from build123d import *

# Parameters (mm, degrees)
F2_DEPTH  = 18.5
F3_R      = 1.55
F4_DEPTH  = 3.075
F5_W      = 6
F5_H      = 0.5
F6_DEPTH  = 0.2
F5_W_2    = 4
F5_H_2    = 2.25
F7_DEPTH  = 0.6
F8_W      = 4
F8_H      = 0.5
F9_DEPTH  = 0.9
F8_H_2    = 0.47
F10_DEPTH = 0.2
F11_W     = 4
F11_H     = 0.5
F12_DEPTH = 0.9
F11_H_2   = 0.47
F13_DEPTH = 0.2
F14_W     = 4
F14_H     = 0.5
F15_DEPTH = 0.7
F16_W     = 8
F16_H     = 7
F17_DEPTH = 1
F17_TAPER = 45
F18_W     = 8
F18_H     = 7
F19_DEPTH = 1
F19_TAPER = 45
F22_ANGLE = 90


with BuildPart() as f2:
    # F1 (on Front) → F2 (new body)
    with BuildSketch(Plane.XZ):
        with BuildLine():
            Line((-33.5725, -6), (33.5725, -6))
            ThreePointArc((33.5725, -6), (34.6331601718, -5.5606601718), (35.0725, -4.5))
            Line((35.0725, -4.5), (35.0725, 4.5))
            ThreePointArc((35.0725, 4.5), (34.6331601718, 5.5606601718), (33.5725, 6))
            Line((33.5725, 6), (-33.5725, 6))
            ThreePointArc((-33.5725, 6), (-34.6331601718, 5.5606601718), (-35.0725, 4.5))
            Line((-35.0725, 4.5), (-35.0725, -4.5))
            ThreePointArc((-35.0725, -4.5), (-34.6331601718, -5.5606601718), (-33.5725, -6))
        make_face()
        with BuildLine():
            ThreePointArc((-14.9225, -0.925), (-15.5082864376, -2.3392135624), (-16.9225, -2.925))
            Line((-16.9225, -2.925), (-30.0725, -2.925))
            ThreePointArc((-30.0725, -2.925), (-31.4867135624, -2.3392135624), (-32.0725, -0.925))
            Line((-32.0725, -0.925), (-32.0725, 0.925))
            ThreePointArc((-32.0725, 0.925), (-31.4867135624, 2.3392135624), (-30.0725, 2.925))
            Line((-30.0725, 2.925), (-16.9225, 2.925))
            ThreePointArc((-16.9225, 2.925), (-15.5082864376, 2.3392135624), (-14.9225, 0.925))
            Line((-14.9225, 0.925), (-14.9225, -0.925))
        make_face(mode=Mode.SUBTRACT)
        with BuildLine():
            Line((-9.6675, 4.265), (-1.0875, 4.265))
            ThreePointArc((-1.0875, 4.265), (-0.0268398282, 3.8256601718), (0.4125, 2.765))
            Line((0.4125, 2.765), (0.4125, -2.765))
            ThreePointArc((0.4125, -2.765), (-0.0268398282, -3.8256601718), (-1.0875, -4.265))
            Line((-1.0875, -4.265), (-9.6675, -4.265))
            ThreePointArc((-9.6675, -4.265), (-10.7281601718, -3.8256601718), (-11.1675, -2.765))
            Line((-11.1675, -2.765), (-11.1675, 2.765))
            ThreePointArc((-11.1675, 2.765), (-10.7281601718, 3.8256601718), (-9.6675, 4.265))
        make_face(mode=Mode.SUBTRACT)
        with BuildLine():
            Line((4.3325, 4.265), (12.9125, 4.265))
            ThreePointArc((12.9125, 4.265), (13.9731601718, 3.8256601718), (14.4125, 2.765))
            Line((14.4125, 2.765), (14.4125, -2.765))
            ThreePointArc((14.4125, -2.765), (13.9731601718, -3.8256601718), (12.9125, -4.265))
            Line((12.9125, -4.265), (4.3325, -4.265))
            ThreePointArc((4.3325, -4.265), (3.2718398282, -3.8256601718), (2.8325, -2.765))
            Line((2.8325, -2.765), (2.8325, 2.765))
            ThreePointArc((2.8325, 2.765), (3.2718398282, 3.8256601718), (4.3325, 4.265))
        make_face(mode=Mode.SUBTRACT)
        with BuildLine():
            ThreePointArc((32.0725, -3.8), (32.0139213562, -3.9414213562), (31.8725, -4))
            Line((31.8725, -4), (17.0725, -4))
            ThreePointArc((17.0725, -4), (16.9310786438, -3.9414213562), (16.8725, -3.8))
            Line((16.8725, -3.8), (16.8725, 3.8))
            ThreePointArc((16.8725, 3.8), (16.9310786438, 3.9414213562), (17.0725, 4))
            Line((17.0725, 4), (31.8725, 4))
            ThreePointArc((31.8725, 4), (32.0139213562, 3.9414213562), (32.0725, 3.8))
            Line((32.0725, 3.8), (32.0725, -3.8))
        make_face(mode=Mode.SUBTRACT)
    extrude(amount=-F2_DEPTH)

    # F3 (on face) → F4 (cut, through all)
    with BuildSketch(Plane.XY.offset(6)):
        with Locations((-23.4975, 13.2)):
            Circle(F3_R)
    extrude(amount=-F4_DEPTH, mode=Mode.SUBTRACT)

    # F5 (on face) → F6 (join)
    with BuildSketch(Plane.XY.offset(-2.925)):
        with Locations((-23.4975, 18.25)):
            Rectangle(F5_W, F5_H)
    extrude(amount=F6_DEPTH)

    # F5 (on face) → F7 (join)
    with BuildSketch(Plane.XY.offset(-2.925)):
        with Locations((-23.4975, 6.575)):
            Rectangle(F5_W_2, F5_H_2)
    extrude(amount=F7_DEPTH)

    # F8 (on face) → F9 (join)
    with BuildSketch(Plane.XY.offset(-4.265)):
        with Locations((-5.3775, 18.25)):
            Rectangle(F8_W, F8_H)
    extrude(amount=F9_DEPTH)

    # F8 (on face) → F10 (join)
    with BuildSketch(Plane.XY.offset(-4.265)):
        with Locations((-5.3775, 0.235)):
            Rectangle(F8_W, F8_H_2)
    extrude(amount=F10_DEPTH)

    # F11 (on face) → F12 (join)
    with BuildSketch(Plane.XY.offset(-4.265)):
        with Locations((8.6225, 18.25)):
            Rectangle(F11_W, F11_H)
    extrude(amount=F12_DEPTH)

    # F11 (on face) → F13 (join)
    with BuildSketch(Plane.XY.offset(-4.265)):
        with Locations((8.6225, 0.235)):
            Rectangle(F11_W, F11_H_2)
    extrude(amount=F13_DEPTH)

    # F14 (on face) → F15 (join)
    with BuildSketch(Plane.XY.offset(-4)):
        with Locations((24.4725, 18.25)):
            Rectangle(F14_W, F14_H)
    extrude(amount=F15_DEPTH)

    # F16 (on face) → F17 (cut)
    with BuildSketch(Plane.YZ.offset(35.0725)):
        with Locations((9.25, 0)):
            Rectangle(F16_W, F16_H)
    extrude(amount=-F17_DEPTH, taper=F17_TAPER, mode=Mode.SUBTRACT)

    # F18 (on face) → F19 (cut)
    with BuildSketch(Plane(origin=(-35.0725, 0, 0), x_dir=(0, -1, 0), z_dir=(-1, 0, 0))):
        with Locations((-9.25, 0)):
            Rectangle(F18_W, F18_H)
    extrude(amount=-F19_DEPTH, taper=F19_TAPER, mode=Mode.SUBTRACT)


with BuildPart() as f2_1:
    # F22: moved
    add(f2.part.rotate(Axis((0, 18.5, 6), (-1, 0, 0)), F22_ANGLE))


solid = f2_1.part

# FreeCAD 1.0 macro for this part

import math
import FreeCAD as App
import Part
import Sketcher
Q = App.Units.Quantity


def add_polygon(sketch, points):
    """Adds a closed chain of lines whose ends are joined by coincident constraints."""
    first, n = sketch.GeometryCount, len(points)
    for a, b in zip(points, points[1:] + points[:1]):
        sketch.addGeometry(Part.LineSegment(App.Vector(*a, 0), App.Vector(*b, 0)), False)
    for i in range(n):
        sketch.addConstraint(Sketcher.Constraint("Coincident", first + i, 2, first + (i + 1) % n, 1))

doc = App.newDocument("Part")
body = doc.addObject("PartDesign::Body", "Body")

# Sketch on XZ plane
sketch1 = body.newObject("Sketcher::SketchObject", "Sketch")
sketch1.AttachmentSupport = (doc.getObject("XZ_Plane"), [""])
sketch1.MapMode = "FlatFace"
sketch1.addGeometry([
    Part.LineSegment(App.Vector(-33.57, -6, 0), App.Vector(33.57, -6, 0)),  # 0
    Part.ArcOfCircle(Part.Circle(App.Vector(33.57, -4.5, 0), App.Vector(0, 0, 1), 1.5), math.radians(-90), math.radians(0)),  # 1
    Part.LineSegment(App.Vector(35.07, -4.5, 0), App.Vector(35.07, 4.5, 0)),  # 2
    Part.ArcOfCircle(Part.Circle(App.Vector(33.57, 4.5, 0), App.Vector(0, 0, 1), 1.5), math.radians(0), math.radians(90)),  # 3
    Part.LineSegment(App.Vector(33.57, 6, 0), App.Vector(-33.57, 6, 0)),  # 4
    Part.ArcOfCircle(Part.Circle(App.Vector(-33.57, 4.5, 0), App.Vector(0, 0, 1), 1.5), math.radians(90), math.radians(180)),  # 5
    Part.LineSegment(App.Vector(-35.07, 4.5, 0), App.Vector(-35.07, -4.5, 0)),  # 6
    Part.ArcOfCircle(Part.Circle(App.Vector(-33.57, -4.5, 0), App.Vector(0, 0, 1), 1.5), math.radians(180), math.radians(270)),  # 7
    Part.LineSegment(App.Vector(-14.92, 0.93, 0), App.Vector(-14.92, -0.93, 0)),  # 8
    Part.ArcOfCircle(Part.Circle(App.Vector(-16.92, -0.93, 0), App.Vector(0, 0, 1), 2), math.radians(-90), math.radians(0)),  # 9
    Part.LineSegment(App.Vector(-16.92, -2.92, 0), App.Vector(-30.07, -2.92, 0)),  # 10
    Part.ArcOfCircle(Part.Circle(App.Vector(-30.07, -0.93, 0), App.Vector(0, 0, 1), 2), math.radians(180), math.radians(270)),  # 11
    Part.LineSegment(App.Vector(-32.07, -0.93, 0), App.Vector(-32.07, 0.93, 0)),  # 12
    Part.ArcOfCircle(Part.Circle(App.Vector(-30.07, 0.93, 0), App.Vector(0, 0, 1), 2), math.radians(90), math.radians(180)),  # 13
    Part.LineSegment(App.Vector(-30.07, 2.92, 0), App.Vector(-16.92, 2.92, 0)),  # 14
    Part.ArcOfCircle(Part.Circle(App.Vector(-16.92, 0.93, 0), App.Vector(0, 0, 1), 2), math.radians(0), math.radians(90)),  # 15
    Part.ArcOfCircle(Part.Circle(App.Vector(-9.67, 2.77, 0), App.Vector(0, 0, 1), 1.5), math.radians(90), math.radians(180)),  # 16
    Part.LineSegment(App.Vector(-9.67, 4.26, 0), App.Vector(-1.09, 4.26, 0)),  # 17
    Part.ArcOfCircle(Part.Circle(App.Vector(-1.09, 2.77, 0), App.Vector(0, 0, 1), 1.5), math.radians(0), math.radians(90)),  # 18
    Part.LineSegment(App.Vector(0.41, 2.77, 0), App.Vector(0.41, -2.77, 0)),  # 19
    Part.ArcOfCircle(Part.Circle(App.Vector(-1.09, -2.77, 0), App.Vector(0, 0, 1), 1.5), math.radians(-90), math.radians(0)),  # 20
    Part.LineSegment(App.Vector(-1.09, -4.26, 0), App.Vector(-9.67, -4.26, 0)),  # 21
    Part.ArcOfCircle(Part.Circle(App.Vector(-9.67, -2.77, 0), App.Vector(0, 0, 1), 1.5), math.radians(180), math.radians(270)),  # 22
    Part.LineSegment(App.Vector(-11.17, -2.77, 0), App.Vector(-11.17, 2.77, 0)),  # 23
    Part.ArcOfCircle(Part.Circle(App.Vector(4.33, 2.77, 0), App.Vector(0, 0, 1), 1.5), math.radians(90), math.radians(180)),  # 24
    Part.LineSegment(App.Vector(4.33, 4.26, 0), App.Vector(12.91, 4.26, 0)),  # 25
    Part.ArcOfCircle(Part.Circle(App.Vector(12.91, 2.77, 0), App.Vector(0, 0, 1), 1.5), math.radians(0), math.radians(90)),  # 26
    Part.LineSegment(App.Vector(14.41, 2.77, 0), App.Vector(14.41, -2.77, 0)),  # 27
    Part.ArcOfCircle(Part.Circle(App.Vector(12.91, -2.77, 0), App.Vector(0, 0, 1), 1.5), math.radians(-90), math.radians(0)),  # 28
    Part.LineSegment(App.Vector(12.91, -4.26, 0), App.Vector(4.33, -4.26, 0)),  # 29
    Part.ArcOfCircle(Part.Circle(App.Vector(4.33, -2.77, 0), App.Vector(0, 0, 1), 1.5), math.radians(180), math.radians(270)),  # 30
    Part.LineSegment(App.Vector(2.83, -2.77, 0), App.Vector(2.83, 2.77, 0)),  # 31
    Part.LineSegment(App.Vector(32.07, 3.8, 0), App.Vector(32.07, -3.8, 0)),  # 32
    Part.ArcOfCircle(Part.Circle(App.Vector(31.87, -3.8, 0), App.Vector(0, 0, 1), 0.2), math.radians(-90), math.radians(0)),  # 33
    Part.LineSegment(App.Vector(31.87, -4, 0), App.Vector(17.07, -4, 0)),  # 34
    Part.ArcOfCircle(Part.Circle(App.Vector(17.07, -3.8, 0), App.Vector(0, 0, 1), 0.2), math.radians(180), math.radians(270)),  # 35
    Part.LineSegment(App.Vector(16.87, -3.8, 0), App.Vector(16.87, 3.8, 0)),  # 36
    Part.ArcOfCircle(Part.Circle(App.Vector(17.07, 3.8, 0), App.Vector(0, 0, 1), 0.2), math.radians(90), math.radians(180)),  # 37
    Part.LineSegment(App.Vector(17.07, 4, 0), App.Vector(31.87, 4, 0)),  # 38
    Part.ArcOfCircle(Part.Circle(App.Vector(31.87, 3.8, 0), App.Vector(0, 0, 1), 0.2), math.radians(0), math.radians(90)),  # 39
], False)
sketch1.addConstraint([
    Sketcher.Constraint("Tangent", 0, 2, 1, 1),
    Sketcher.Constraint("Tangent", 1, 2, 2, 1),
    Sketcher.Constraint("Tangent", 2, 2, 3, 1),
    Sketcher.Constraint("Tangent", 3, 2, 4, 1),
    Sketcher.Constraint("Tangent", 4, 2, 5, 1),
    Sketcher.Constraint("Tangent", 5, 2, 6, 1),
    Sketcher.Constraint("Tangent", 6, 2, 7, 1),
    Sketcher.Constraint("Tangent", 7, 2, 0, 1),
    Sketcher.Constraint("Tangent", 8, 2, 9, 2),
    Sketcher.Constraint("Tangent", 9, 1, 10, 1),
    Sketcher.Constraint("Tangent", 10, 2, 11, 2),
    Sketcher.Constraint("Tangent", 11, 1, 12, 1),
    Sketcher.Constraint("Tangent", 12, 2, 13, 2),
    Sketcher.Constraint("Tangent", 13, 1, 14, 1),
    Sketcher.Constraint("Tangent", 14, 2, 15, 2),
    Sketcher.Constraint("Tangent", 15, 1, 8, 1),
    Sketcher.Constraint("Tangent", 16, 1, 17, 1),
    Sketcher.Constraint("Tangent", 17, 2, 18, 2),
    Sketcher.Constraint("Tangent", 18, 1, 19, 1),
    Sketcher.Constraint("Tangent", 19, 2, 20, 2),
    Sketcher.Constraint("Tangent", 20, 1, 21, 1),
    Sketcher.Constraint("Tangent", 21, 2, 22, 2),
    Sketcher.Constraint("Tangent", 22, 1, 23, 1),
    Sketcher.Constraint("Tangent", 23, 2, 16, 2),
    Sketcher.Constraint("Tangent", 24, 1, 25, 1),
    Sketcher.Constraint("Tangent", 25, 2, 26, 2),
    Sketcher.Constraint("Tangent", 26, 1, 27, 1),
    Sketcher.Constraint("Tangent", 27, 2, 28, 2),
    Sketcher.Constraint("Tangent", 28, 1, 29, 1),
    Sketcher.Constraint("Tangent", 29, 2, 30, 2),
    Sketcher.Constraint("Tangent", 30, 1, 31, 1),
    Sketcher.Constraint("Tangent", 31, 2, 24, 2),
    Sketcher.Constraint("Tangent", 32, 2, 33, 2),
    Sketcher.Constraint("Tangent", 33, 1, 34, 1),
    Sketcher.Constraint("Tangent", 34, 2, 35, 2),
    Sketcher.Constraint("Tangent", 35, 1, 36, 1),
    Sketcher.Constraint("Tangent", 36, 2, 37, 2),
    Sketcher.Constraint("Tangent", 37, 1, 38, 1),
    Sketcher.Constraint("Tangent", 38, 2, 39, 2),
    Sketcher.Constraint("Tangent", 39, 1, 32, 1),
    Sketcher.Constraint("Horizontal", 0),
    Sketcher.Constraint("Vertical", 2),
    Sketcher.Constraint("Horizontal", 4),
    Sketcher.Constraint("Vertical", 6),
    Sketcher.Constraint("Vertical", 8),
    Sketcher.Constraint("Horizontal", 10),
    Sketcher.Constraint("Vertical", 12),
    Sketcher.Constraint("Horizontal", 14),
    Sketcher.Constraint("Horizontal", 17),
    Sketcher.Constraint("Vertical", 19),
    Sketcher.Constraint("Horizontal", 21),
    Sketcher.Constraint("Vertical", 23),
    Sketcher.Constraint("Horizontal", 25),
    Sketcher.Constraint("Vertical", 27),
    Sketcher.Constraint("Horizontal", 29),
    Sketcher.Constraint("Vertical", 31),
    Sketcher.Constraint("Vertical", 32),
    Sketcher.Constraint("Horizontal", 34),
    Sketcher.Constraint("Vertical", 36),
    Sketcher.Constraint("Horizontal", 38),
    Sketcher.Constraint("Equal", 1, 3),
    Sketcher.Constraint("Equal", 3, 5),
    Sketcher.Constraint("Equal", 5, 7),
    Sketcher.Constraint("Equal", 9, 11),
    Sketcher.Constraint("Equal", 11, 13),
    Sketcher.Constraint("Equal", 13, 15),
    Sketcher.Constraint("Equal", 7, 16),
    Sketcher.Constraint("Equal", 16, 18),
    Sketcher.Constraint("Equal", 18, 20),
    Sketcher.Constraint("Equal", 20, 22),
    Sketcher.Constraint("Equal", 22, 24),
    Sketcher.Constraint("Equal", 24, 26),
    Sketcher.Constraint("Equal", 26, 28),
    Sketcher.Constraint("Equal", 28, 30),
    Sketcher.Constraint("Equal", 33, 35),
    Sketcher.Constraint("Equal", 35, 37),
    Sketcher.Constraint("Equal", 37, 39),
    Sketcher.Constraint("Symmetric", 1, 3, 5, 3, -1, 1),
    Sketcher.Constraint("Horizontal", 18, 3, 24, 3),
    Sketcher.Constraint("Horizontal", 22, 3, 28, 3),
    Sketcher.Constraint("Equal", 21, 25),
    Sketcher.Constraint("Radius", 9, Q("2 mm")),
    Sketcher.Constraint("Radius", 1, Q("1.5 mm")),
    Sketcher.Constraint("Radius", 33, Q("0.2 mm")),
    Sketcher.Constraint("DistanceY", 2, 1, 2, 2, Q("9 mm")),
    Sketcher.Constraint("DistanceX", 34, 2, 34, 1, Q("14.8 mm")),
    Sketcher.Constraint("DistanceY", 32, 2, 32, 1, Q("7.6 mm")),
    Sketcher.Constraint("DistanceY", 33, 1, -1, 1, Q("4 mm")),
    Sketcher.Constraint("DistanceX", 16, 3, 24, 3, Q("14 mm")),
    Sketcher.Constraint("DistanceX", 5, 2, 13, 3, Q("5 mm")),
    Sketcher.Constraint("DistanceX", 32, 2, 1, 2, Q("3 mm")),
    Sketcher.Constraint("DistanceX", 10, 2, 10, 1, Q("13.15 mm")),
    Sketcher.Constraint("DistanceX", 17, 1, 17, 2, Q("8.58 mm")),
    Sketcher.Constraint("DistanceY", 8, 2, 8, 1, Q("1.85 mm")),
    Sketcher.Constraint("DistanceY", 19, 2, 19, 1, Q("5.53 mm")),
    Sketcher.Constraint("DistanceX", 0, 1, 0, 2, Q("67.145 mm")),
    Sketcher.Constraint("DistanceY", 15, 3, 16, 3, Q("1.84 mm")),
    Sketcher.Constraint("DistanceX", 26, 3, 3, 3, Q("20.66 mm")),
    Sketcher.Constraint("DistanceY", 9, 3, -1, 1, Q("0.925 mm")),
])
pad1 = body.newObject("PartDesign::Pad", "Pad")
pad1.Profile = sketch1
pad1.Length = 18.5
pad1.Reversed = True

# Sketch on XY plane
sketch2 = body.newObject("Sketcher::SketchObject", "Sketch001")
sketch2.AttachmentSupport = (doc.getObject("XY_Plane"), [""])
sketch2.MapMode = "FlatFace"
sketch2.AttachmentOffset = App.Placement(App.Vector(0, 0, 6), App.Rotation())
sketch2.addGeometry(Part.Circle(App.Vector(-23.5, 13.2, 0), App.Vector(0, 0, 1), 1.6), False)
sketch2.addConstraint([
    Sketcher.Constraint("Diameter", 0, Q("3.1 mm")),
    Sketcher.Constraint("DistanceY", -1, 1, 0, 3, Q("13.2 mm")),
    Sketcher.Constraint("DistanceX", 0, 3, -1, 1, Q("23.4975 mm")),
])
pocket1 = body.newObject("PartDesign::Pocket", "Pocket")
pocket1.Profile = sketch2
pocket1.Length = 3.075

# Sketch on XY plane
sketch3 = body.newObject("Sketcher::SketchObject", "Sketch002")
sketch3.AttachmentSupport = (doc.getObject("XY_Plane"), [""])
sketch3.MapMode = "FlatFace"
sketch3.AttachmentOffset = App.Placement(App.Vector(0, 0, -2.925), App.Rotation())
add_polygon(sketch3, [(-26.5, 18.5), (-26.5, 18), (-20.5, 18), (-20.5, 18.5)])  # lines 0-3
sketch3.addConstraint([
    Sketcher.Constraint("Vertical", 0),
    Sketcher.Constraint("Horizontal", 1),
    Sketcher.Constraint("Vertical", 2),
    Sketcher.Constraint("Horizontal", 3),
    Sketcher.Constraint("DistanceX", 1, 1, 1, 2, Q("6 mm")),
    Sketcher.Constraint("DistanceY", 0, 2, 0, 1, Q("0.5 mm")),
    Sketcher.Constraint("DistanceY", -1, 1, 0, 2, Q("18 mm")),
    Sketcher.Constraint("DistanceX", 0, 2, -1, 1, Q("26.4975 mm")),
])
pad2 = body.newObject("PartDesign::Pad", "Pad001")
pad2.Profile = sketch3
pad2.Length = 0.2

# Sketch on XY plane
sketch4 = body.newObject("Sketcher::SketchObject", "Sketch003")
sketch4.AttachmentSupport = (doc.getObject("XY_Plane"), [""])
sketch4.MapMode = "FlatFace"
sketch4.AttachmentOffset = App.Placement(App.Vector(0, 0, -2.925), App.Rotation())
add_polygon(sketch4, [(-25.5, 7.7), (-25.5, 5.5), (-21.5, 5.5), (-21.5, 7.7)])  # lines 0-3
sketch4.addConstraint([
    Sketcher.Constraint("Vertical", 0),
    Sketcher.Constraint("Horizontal", 1),
    Sketcher.Constraint("Vertical", 2),
    Sketcher.Constraint("Horizontal", 3),
    Sketcher.Constraint("DistanceX", 1, 1, 1, 2, Q("4 mm")),
    Sketcher.Constraint("DistanceY", 0, 2, 0, 1, Q("2.25 mm")),
    Sketcher.Constraint("DistanceY", -1, 1, 2, 2, Q("7.7 mm")),
    Sketcher.Constraint("DistanceX", 0, 2, -1, 1, Q("25.4975 mm")),
])
pad3 = body.newObject("PartDesign::Pad", "Pad002")
pad3.Profile = sketch4
pad3.Length = 0.6

# Sketch on XY plane
sketch5 = body.newObject("Sketcher::SketchObject", "Sketch004")
sketch5.AttachmentSupport = (doc.getObject("XY_Plane"), [""])
sketch5.MapMode = "FlatFace"
sketch5.AttachmentOffset = App.Placement(App.Vector(0, 0, -4.265), App.Rotation())
add_polygon(sketch5, [(-7.4, 18.5), (-7.4, 18), (-3.4, 18), (-3.4, 18.5)])  # lines 0-3
sketch5.addConstraint([
    Sketcher.Constraint("Vertical", 0),
    Sketcher.Constraint("Horizontal", 1),
    Sketcher.Constraint("Vertical", 2),
    Sketcher.Constraint("Horizontal", 3),
    Sketcher.Constraint("DistanceX", 1, 1, 1, 2, Q("4 mm")),
    Sketcher.Constraint("DistanceY", 0, 2, 0, 1, Q("0.5 mm")),
    Sketcher.Constraint("DistanceY", -1, 1, 0, 2, Q("18 mm")),
    Sketcher.Constraint("DistanceX", 0, 2, -1, 1, Q("7.3775 mm")),
])
pad4 = body.newObject("PartDesign::Pad", "Pad003")
pad4.Profile = sketch5
pad4.Length = 0.9

# Sketch on XY plane
sketch6 = body.newObject("Sketcher::SketchObject", "Sketch005")
sketch6.AttachmentSupport = (doc.getObject("XY_Plane"), [""])
sketch6.MapMode = "FlatFace"
sketch6.AttachmentOffset = App.Placement(App.Vector(0, 0, -4.265), App.Rotation())
add_polygon(sketch6, [(-7.38, 0.47), (-7.38, 0), (-3.38, 0), (-3.38, 0.47)])  # lines 0-3
sketch6.addConstraint([
    Sketcher.Constraint("Vertical", 0),
    Sketcher.Constraint("Horizontal", 1),
    Sketcher.Constraint("Vertical", 2),
    Sketcher.Constraint("Horizontal", 3),
    Sketcher.Constraint("PointOnObject", 0, 2, -1),
    Sketcher.Constraint("DistanceX", 1, 1, 1, 2, Q("4 mm")),
    Sketcher.Constraint("DistanceY", 0, 2, 0, 1, Q("0.47 mm")),
    Sketcher.Constraint("DistanceX", 0, 2, -1, 1, Q("7.3775 mm")),
])
pad5 = body.newObject("PartDesign::Pad", "Pad004")
pad5.Profile = sketch6
pad5.Length = 0.2

# Sketch on XY plane
sketch7 = body.newObject("Sketcher::SketchObject", "Sketch006")
sketch7.AttachmentSupport = (doc.getObject("XY_Plane"), [""])
sketch7.MapMode = "FlatFace"
sketch7.AttachmentOffset = App.Placement(App.Vector(0, 0, -4.265), App.Rotation())
add_polygon(sketch7, [(6.6, 18.5), (6.6, 18), (10.6, 18), (10.6, 18.5)])  # lines 0-3
sketch7.addConstraint([
    Sketcher.Constraint("Vertical", 0),
    Sketcher.Constraint("Horizontal", 1),
    Sketcher.Constraint("Vertical", 2),
    Sketcher.Constraint("Horizontal", 3),
    Sketcher.Constraint("DistanceX", 1, 1, 1, 2, Q("4 mm")),
    Sketcher.Constraint("DistanceY", 0, 2, 0, 1, Q("0.5 mm")),
    Sketcher.Constraint("DistanceY", -1, 1, 0, 2, Q("18 mm")),
    Sketcher.Constraint("DistanceX", -1, 1, 0, 2, Q("6.6225 mm")),
])
pad6 = body.newObject("PartDesign::Pad", "Pad005")
pad6.Profile = sketch7
pad6.Length = 0.9

# Sketch on XY plane
sketch8 = body.newObject("Sketcher::SketchObject", "Sketch007")
sketch8.AttachmentSupport = (doc.getObject("XY_Plane"), [""])
sketch8.MapMode = "FlatFace"
sketch8.AttachmentOffset = App.Placement(App.Vector(0, 0, -4.265), App.Rotation())
add_polygon(sketch8, [(6.62, 0.47), (6.62, 0), (10.62, 0), (10.62, 0.47)])  # lines 0-3
sketch8.addConstraint([
    Sketcher.Constraint("Vertical", 0),
    Sketcher.Constraint("Horizontal", 1),
    Sketcher.Constraint("Vertical", 2),
    Sketcher.Constraint("Horizontal", 3),
    Sketcher.Constraint("PointOnObject", 0, 2, -1),
    Sketcher.Constraint("DistanceX", 1, 1, 1, 2, Q("4 mm")),
    Sketcher.Constraint("DistanceY", 0, 2, 0, 1, Q("0.47 mm")),
    Sketcher.Constraint("DistanceX", -1, 1, 0, 2, Q("6.6225 mm")),
])
pad7 = body.newObject("PartDesign::Pad", "Pad006")
pad7.Profile = sketch8
pad7.Length = 0.2

# Sketch on XY plane
sketch9 = body.newObject("Sketcher::SketchObject", "Sketch008")
sketch9.AttachmentSupport = (doc.getObject("XY_Plane"), [""])
sketch9.MapMode = "FlatFace"
sketch9.AttachmentOffset = App.Placement(App.Vector(0, 0, -4), App.Rotation())
add_polygon(sketch9, [(22.5, 18.5), (22.5, 18), (26.5, 18), (26.5, 18.5)])  # lines 0-3
sketch9.addConstraint([
    Sketcher.Constraint("Vertical", 0),
    Sketcher.Constraint("Horizontal", 1),
    Sketcher.Constraint("Vertical", 2),
    Sketcher.Constraint("Horizontal", 3),
    Sketcher.Constraint("DistanceX", 1, 1, 1, 2, Q("4 mm")),
    Sketcher.Constraint("DistanceY", 0, 2, 0, 1, Q("0.5 mm")),
    Sketcher.Constraint("DistanceY", -1, 1, 0, 2, Q("18 mm")),
    Sketcher.Constraint("DistanceX", -1, 1, 0, 2, Q("22.4725 mm")),
])
pad8 = body.newObject("PartDesign::Pad", "Pad007")
pad8.Profile = sketch9
pad8.Length = 0.7

# Sketch on YZ plane
sketch10 = body.newObject("Sketcher::SketchObject", "Sketch009")
sketch10.AttachmentSupport = (doc.getObject("YZ_Plane"), [""])
sketch10.MapMode = "FlatFace"
sketch10.AttachmentOffset = App.Placement(App.Vector(0, 0, 35.0725), App.Rotation())
add_polygon(sketch10, [(5, 4), (5, -4), (13, -4), (13, 4)])  # lines 0-3
sketch10.addConstraint([
    Sketcher.Constraint("Vertical", 0),
    Sketcher.Constraint("Horizontal", 1),
    Sketcher.Constraint("Vertical", 2),
    Sketcher.Constraint("Horizontal", 3),
    Sketcher.Constraint("DistanceX", 1, 1, 1, 2, Q("8 mm")),
    Sketcher.Constraint("DistanceY", 0, 2, 0, 1, Q("7 mm")),
    Sketcher.Constraint("DistanceY", 0, 2, -1, 1, Q("3.5 mm")),
    Sketcher.Constraint("DistanceX", -1, 1, 0, 2, Q("5.25 mm")),
])
pocket2 = body.newObject("PartDesign::Pocket", "Pocket001")
pocket2.Profile = sketch10
pocket2.Length = 1
pocket2.TaperAngle = -45

# Sketch on YZ plane
sketch11 = body.newObject("Sketcher::SketchObject", "Sketch010")
sketch11.AttachmentSupport = (doc.getObject("YZ_Plane"), [""])
sketch11.MapMode = "FlatFace"
sketch11.AttachmentOffset = App.Placement(App.Vector(0, 0, -35.0725), App.Rotation())
add_polygon(sketch11, [(13, 4), (13, -4), (5, -4), (5, 4)])  # lines 0-3
sketch11.addConstraint([
    Sketcher.Constraint("Vertical", 0),
    Sketcher.Constraint("Horizontal", 1),
    Sketcher.Constraint("Vertical", 2),
    Sketcher.Constraint("Horizontal", 3),
    Sketcher.Constraint("DistanceX", 1, 2, 1, 1, Q("8 mm")),
    Sketcher.Constraint("DistanceY", 0, 2, 0, 1, Q("7 mm")),
    Sketcher.Constraint("DistanceY", 0, 2, -1, 1, Q("3.5 mm")),
    Sketcher.Constraint("DistanceX", -1, 1, 0, 2, Q("13.25 mm")),
])
pocket3 = body.newObject("PartDesign::Pocket", "Pocket002")
pocket3.Profile = sketch11
pocket3.Length = 1
pocket3.Reversed = True
pocket3.TaperAngle = -45
body2 = doc.addObject("PartDesign::Body", "Body001")
doc.recompute()

body.Placement = App.Placement(App.Vector(0, 12.5, 24.5), App.Rotation(App.Vector(-1, 0, 0), 90))
boolean = body2.newObject("PartDesign::Boolean", "Boolean")
boolean.Type = "Fuse"
boolean.addObjects([body])

doc.recompute()
